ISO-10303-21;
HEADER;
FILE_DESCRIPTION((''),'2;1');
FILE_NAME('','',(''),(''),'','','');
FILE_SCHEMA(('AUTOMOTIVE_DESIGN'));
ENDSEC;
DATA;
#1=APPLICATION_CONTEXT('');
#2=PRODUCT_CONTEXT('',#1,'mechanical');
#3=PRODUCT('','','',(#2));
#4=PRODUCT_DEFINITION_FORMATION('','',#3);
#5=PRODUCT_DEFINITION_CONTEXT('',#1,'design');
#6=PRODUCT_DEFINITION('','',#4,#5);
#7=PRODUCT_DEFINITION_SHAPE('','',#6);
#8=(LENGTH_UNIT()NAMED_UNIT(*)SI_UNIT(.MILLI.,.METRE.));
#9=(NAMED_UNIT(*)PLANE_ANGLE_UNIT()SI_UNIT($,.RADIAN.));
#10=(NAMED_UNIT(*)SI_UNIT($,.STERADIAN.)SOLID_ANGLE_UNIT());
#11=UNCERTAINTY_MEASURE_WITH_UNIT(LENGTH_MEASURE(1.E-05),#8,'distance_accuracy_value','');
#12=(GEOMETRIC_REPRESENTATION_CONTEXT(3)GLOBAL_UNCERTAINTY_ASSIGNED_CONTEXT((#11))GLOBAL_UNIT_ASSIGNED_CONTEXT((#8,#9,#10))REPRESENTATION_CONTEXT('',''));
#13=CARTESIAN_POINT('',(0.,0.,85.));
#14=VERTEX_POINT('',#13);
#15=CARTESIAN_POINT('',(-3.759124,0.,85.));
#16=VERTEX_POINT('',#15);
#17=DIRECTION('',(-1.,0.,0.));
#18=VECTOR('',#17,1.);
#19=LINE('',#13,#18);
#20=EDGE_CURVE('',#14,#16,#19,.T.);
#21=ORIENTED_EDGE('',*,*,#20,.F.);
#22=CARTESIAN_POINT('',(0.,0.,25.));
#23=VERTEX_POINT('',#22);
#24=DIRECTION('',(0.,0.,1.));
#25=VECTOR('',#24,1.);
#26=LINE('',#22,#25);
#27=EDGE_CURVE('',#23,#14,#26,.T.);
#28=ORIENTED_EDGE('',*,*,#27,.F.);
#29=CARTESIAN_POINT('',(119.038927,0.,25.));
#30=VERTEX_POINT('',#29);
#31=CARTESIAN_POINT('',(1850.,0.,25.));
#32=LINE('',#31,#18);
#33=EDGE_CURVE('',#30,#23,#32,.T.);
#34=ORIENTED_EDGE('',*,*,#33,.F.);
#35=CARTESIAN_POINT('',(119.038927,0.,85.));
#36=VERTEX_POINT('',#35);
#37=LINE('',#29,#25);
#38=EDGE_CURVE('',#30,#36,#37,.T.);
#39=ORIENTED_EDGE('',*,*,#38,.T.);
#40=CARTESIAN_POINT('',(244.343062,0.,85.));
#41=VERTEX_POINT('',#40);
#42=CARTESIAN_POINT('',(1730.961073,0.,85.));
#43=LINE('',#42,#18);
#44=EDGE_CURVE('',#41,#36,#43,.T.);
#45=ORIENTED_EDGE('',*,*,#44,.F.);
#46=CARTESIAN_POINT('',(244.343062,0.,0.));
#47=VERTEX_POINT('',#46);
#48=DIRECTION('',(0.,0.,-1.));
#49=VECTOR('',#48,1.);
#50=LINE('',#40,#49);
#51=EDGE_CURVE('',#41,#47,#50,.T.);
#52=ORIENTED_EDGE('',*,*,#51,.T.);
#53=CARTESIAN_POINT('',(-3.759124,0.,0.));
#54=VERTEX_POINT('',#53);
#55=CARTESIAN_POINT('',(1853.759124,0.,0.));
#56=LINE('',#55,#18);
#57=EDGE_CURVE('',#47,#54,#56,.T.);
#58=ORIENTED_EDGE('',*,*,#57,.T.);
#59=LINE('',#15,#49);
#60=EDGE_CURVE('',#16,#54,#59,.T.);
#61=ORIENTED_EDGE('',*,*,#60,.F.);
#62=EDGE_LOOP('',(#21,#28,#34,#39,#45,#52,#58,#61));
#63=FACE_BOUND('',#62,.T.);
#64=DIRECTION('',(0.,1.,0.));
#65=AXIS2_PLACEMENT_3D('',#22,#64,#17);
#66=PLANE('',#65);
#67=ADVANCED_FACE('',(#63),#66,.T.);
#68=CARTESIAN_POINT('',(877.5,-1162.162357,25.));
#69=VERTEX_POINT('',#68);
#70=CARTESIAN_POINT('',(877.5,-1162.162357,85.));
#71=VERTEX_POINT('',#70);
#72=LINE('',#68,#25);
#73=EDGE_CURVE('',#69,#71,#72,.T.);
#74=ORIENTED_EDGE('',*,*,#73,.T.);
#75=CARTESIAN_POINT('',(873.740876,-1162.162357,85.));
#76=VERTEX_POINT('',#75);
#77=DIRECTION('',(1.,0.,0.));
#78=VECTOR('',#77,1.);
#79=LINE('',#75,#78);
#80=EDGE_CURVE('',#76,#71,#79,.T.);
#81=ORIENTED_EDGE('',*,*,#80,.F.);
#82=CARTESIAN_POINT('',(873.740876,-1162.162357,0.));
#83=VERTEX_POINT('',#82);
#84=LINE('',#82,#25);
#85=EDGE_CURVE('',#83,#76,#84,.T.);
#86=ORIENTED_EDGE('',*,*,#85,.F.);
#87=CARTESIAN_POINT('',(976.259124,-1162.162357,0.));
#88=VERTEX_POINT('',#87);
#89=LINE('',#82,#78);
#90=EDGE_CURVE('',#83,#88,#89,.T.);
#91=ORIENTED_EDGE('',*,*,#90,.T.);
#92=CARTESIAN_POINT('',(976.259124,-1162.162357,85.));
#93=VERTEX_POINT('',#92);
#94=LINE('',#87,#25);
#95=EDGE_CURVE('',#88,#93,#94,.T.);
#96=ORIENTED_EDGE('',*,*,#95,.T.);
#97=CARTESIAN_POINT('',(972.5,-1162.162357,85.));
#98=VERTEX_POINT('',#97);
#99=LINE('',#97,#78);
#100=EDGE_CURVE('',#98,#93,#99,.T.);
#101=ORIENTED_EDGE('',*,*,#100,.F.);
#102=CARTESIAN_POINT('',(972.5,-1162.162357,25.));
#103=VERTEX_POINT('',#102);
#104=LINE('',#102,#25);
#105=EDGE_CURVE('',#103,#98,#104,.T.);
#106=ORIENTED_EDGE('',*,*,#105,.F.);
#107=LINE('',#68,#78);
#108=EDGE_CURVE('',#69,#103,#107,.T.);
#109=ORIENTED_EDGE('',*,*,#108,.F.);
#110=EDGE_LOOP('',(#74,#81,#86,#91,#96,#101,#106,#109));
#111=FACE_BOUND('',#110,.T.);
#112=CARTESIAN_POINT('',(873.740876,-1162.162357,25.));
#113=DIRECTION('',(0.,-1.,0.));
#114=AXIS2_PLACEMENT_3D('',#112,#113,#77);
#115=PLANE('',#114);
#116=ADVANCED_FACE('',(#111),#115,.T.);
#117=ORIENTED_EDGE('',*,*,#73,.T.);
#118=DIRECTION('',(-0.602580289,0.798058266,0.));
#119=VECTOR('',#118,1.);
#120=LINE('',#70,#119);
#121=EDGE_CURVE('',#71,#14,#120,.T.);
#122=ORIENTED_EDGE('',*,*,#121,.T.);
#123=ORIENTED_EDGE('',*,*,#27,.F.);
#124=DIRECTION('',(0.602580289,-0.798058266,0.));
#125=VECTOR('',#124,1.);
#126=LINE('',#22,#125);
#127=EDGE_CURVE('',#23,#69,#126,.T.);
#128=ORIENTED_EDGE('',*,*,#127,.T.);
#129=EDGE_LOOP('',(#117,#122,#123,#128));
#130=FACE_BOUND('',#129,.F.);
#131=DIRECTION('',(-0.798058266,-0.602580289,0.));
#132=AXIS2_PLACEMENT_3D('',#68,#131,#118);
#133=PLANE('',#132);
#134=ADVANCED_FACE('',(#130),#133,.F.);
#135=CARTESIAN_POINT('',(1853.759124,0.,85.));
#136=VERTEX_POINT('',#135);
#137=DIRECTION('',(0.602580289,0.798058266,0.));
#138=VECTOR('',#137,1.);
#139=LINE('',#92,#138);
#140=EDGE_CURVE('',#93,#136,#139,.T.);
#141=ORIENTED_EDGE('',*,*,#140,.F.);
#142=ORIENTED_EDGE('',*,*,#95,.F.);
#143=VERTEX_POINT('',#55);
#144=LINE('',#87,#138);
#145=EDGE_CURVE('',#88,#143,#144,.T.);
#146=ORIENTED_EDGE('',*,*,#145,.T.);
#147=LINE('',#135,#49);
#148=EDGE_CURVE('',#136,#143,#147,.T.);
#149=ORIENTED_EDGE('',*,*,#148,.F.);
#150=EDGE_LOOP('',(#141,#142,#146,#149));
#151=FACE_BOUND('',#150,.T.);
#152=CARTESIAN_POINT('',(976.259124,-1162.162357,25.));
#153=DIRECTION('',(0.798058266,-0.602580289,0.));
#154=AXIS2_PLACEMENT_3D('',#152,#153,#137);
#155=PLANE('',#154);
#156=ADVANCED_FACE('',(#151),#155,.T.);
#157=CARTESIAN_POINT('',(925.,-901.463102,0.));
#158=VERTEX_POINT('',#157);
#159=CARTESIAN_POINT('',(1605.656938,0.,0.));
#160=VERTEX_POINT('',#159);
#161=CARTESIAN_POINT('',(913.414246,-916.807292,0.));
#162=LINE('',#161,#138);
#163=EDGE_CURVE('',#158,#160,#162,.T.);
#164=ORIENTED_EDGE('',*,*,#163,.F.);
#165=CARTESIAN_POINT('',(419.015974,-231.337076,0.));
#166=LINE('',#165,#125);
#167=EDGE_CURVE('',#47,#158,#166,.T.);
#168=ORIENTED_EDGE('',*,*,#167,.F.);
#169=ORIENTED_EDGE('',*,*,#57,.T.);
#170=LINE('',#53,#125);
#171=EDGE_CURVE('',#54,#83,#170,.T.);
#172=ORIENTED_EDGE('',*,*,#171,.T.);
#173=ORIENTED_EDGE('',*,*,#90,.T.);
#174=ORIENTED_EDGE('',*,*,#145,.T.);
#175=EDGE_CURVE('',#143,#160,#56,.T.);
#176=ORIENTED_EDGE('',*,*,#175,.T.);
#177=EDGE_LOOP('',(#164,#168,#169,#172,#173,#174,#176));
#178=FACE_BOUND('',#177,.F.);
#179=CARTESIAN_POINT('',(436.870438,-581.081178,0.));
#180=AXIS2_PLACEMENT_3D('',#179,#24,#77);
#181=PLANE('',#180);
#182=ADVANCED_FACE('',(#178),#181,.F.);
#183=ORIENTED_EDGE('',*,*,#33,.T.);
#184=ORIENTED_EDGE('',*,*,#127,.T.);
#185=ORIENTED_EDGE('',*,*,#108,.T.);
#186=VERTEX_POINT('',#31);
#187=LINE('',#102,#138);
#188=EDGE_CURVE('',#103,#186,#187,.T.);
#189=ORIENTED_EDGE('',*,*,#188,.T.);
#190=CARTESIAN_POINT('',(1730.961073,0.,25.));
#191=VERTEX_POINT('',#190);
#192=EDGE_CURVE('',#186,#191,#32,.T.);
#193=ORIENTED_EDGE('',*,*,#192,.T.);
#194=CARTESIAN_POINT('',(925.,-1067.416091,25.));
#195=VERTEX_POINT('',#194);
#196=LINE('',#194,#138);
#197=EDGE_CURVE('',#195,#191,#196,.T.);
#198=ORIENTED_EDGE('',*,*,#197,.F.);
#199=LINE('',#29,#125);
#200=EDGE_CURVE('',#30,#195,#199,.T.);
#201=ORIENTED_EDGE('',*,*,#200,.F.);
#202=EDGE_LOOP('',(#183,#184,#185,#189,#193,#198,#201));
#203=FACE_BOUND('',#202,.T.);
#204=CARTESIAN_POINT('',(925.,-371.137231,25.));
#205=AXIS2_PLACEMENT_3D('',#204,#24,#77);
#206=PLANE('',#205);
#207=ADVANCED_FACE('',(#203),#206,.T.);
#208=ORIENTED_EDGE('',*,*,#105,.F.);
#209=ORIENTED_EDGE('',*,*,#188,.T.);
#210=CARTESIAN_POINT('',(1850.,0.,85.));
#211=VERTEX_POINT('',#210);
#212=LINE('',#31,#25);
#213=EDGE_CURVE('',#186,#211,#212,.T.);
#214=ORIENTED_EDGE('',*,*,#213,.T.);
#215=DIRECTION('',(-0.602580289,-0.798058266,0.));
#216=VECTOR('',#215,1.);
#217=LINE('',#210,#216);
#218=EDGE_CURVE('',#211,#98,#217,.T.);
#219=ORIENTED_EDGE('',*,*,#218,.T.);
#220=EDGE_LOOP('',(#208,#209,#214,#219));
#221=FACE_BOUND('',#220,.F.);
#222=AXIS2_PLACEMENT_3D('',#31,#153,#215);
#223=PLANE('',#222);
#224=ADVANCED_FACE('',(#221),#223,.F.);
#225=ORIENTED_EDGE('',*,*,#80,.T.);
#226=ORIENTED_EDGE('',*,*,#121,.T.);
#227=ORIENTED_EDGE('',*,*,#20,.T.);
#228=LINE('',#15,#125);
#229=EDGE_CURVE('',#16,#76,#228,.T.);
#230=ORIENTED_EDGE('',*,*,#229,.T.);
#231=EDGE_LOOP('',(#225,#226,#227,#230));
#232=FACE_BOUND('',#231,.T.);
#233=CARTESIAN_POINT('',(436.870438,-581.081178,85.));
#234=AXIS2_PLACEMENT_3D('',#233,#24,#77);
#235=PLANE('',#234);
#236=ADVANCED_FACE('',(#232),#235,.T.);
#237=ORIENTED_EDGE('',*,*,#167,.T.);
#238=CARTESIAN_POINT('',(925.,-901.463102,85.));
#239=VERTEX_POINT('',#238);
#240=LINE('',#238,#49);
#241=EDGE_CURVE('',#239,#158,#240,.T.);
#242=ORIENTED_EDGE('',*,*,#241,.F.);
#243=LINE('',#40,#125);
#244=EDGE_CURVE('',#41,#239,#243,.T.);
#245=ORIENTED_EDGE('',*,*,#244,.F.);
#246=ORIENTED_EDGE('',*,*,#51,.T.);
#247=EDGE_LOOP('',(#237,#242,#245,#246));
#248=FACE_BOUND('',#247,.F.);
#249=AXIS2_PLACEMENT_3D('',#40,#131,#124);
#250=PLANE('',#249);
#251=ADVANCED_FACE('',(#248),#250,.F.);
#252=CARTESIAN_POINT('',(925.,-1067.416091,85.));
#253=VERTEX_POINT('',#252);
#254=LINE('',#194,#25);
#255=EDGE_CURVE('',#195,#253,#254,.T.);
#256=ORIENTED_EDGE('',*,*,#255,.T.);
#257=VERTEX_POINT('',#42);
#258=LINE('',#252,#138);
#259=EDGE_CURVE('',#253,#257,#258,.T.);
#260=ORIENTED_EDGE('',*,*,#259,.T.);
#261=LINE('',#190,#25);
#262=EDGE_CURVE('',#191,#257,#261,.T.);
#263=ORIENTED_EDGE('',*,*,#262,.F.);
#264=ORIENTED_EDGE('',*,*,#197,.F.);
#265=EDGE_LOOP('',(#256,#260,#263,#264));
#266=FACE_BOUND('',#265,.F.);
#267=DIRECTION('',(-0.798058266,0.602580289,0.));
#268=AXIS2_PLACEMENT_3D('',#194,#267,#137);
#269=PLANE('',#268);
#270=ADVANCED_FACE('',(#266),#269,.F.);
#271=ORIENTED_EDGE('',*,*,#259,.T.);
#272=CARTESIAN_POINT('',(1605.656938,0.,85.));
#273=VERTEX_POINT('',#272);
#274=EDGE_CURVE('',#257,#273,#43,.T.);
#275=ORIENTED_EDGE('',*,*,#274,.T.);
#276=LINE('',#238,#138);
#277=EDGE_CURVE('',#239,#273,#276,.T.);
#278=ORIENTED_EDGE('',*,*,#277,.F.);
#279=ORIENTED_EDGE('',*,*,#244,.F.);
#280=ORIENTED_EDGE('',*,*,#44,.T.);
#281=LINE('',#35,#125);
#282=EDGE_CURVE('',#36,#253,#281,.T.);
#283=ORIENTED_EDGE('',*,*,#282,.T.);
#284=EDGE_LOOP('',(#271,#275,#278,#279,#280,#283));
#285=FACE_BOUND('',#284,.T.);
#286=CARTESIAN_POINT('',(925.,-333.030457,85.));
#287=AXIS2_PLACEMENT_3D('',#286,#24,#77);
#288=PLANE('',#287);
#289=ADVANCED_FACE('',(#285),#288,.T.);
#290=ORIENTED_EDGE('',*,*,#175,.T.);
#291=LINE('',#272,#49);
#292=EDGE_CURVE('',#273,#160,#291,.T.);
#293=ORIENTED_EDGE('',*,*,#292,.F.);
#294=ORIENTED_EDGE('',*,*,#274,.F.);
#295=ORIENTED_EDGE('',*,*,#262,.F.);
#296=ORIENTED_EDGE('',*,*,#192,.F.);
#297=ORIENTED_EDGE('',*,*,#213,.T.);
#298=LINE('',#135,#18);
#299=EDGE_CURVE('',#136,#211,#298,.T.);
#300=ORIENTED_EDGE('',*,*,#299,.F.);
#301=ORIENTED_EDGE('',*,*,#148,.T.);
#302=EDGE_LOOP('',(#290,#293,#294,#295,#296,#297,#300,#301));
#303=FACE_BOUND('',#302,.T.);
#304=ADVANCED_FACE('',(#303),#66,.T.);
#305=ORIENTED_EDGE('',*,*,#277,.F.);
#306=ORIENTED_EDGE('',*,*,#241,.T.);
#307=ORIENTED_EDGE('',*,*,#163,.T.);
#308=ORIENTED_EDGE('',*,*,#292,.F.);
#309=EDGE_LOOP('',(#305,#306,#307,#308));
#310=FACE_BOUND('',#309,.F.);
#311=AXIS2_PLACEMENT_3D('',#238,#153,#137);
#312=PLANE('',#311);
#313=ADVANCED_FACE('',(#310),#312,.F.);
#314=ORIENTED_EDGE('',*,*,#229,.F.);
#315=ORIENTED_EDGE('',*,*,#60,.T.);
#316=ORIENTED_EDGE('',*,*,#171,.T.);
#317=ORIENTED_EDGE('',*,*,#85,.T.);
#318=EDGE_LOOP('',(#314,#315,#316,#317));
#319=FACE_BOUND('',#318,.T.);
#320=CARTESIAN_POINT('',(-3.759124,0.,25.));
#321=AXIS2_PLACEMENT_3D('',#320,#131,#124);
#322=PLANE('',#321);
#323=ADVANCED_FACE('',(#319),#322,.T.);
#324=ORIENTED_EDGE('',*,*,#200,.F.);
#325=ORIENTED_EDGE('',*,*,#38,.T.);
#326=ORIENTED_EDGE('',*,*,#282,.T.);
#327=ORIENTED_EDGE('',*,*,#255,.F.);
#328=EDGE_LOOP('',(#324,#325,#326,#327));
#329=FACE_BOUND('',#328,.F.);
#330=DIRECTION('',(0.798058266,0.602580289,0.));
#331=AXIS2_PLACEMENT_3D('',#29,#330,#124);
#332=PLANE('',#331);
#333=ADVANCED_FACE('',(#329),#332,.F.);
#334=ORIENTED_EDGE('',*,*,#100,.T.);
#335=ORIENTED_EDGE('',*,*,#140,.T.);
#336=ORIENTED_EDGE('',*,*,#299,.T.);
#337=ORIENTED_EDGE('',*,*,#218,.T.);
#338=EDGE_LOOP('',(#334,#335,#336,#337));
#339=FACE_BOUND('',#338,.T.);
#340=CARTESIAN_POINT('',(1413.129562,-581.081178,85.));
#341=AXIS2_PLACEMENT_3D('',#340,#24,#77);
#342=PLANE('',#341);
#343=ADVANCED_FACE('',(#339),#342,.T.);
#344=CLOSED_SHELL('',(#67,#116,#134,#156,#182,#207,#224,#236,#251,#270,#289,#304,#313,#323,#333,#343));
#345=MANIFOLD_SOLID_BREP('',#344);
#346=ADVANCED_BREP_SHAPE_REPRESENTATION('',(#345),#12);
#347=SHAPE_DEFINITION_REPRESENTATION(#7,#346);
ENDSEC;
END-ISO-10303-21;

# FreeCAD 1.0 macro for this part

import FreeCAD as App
import Part
import Sketcher


def add_polygon(sketch, points):
    """Adds a closed chain of lines whose ends are joined by coincident constraints."""
    first, n = sketch.GeometryCount, len(points)
    for a, b in zip(points, points[1:] + points[:1]):
        sketch.addGeometry(Part.LineSegment(App.Vector(*a, 0), App.Vector(*b, 0)), False)
    for i in range(n):
        sketch.addConstraint(Sketcher.Constraint("Coincident", first + i, 2, first + (i + 1) % n, 1))

doc = App.newDocument("Part")
body = doc.addObject("PartDesign::Body", "Body")

sketch1 = body.newObject("Sketcher::SketchObject", "Sketch")
sketch1.AttachmentSupport = (doc.getObject("XY_Plane"), [""])
sketch1.MapMode = "FlatFace"
add_polygon(sketch1, [(1850, 0), (0, 0), (878, -1162), (972, -1162)])
sketch1.addConstraint([
    Sketcher.Constraint("Horizontal", 0),
    Sketcher.Constraint("Horizontal", 2),
    Sketcher.Constraint("Coincident", 0, 2, -1, 1),
    Sketcher.Constraint("Equal", 1, 3),
    Sketcher.Constraint("DistanceX", 0, 2, 0, 1, 1850.0),
    Sketcher.Constraint("DistanceX", 2, 1, 2, 2, 95.0),
    Sketcher.Constraint("Distance", 1, 1456.237478),
])
pad1 = body.newObject("PartDesign::Pad", "Pad")
pad1.Profile = sketch1
pad1.Length = 25

sketch2 = body.newObject("Sketcher::SketchObject", "Sketch001")
sketch2.AttachmentSupport = (doc.getObject("XY_Plane"), [""])
sketch2.MapMode = "FlatFace"
sketch2.AttachmentOffset = App.Placement(App.Vector(0, 0, 25), App.Rotation())
add_polygon(sketch2, [(119, 0), (925, -1067), (1731, 0)])
sketch2.addConstraint([
    Sketcher.Constraint("Horizontal", 2),
    Sketcher.Constraint("PointOnObject", 1, 2, -1),
    Sketcher.Constraint("Equal", 0, 1),
    Sketcher.Constraint("DistanceX", -1, 1, 0, 2, 925.0),
    Sketcher.Constraint("Distance", 0, 1337.51649),
    Sketcher.Constraint("DistanceX", 2, 2, 2, 1, 1611.922145),
])
pad2 = body.newObject("PartDesign::Pad", "Pad001")
pad2.Profile = sketch2
pad2.Length = 60

sketch3 = body.newObject("Sketcher::SketchObject", "Sketch002")
sketch3.AttachmentSupport = (doc.getObject("XY_Plane"), [""])
sketch3.MapMode = "FlatFace"
sketch3.AttachmentOffset = App.Placement(App.Vector(0, 0, 25), App.Rotation())
add_polygon(sketch3, [(-3.8, 0), (873.7, -1162.2), (877.5, -1162.2), (0, 0)])
add_polygon(sketch3, [(1850, 0), (972.5, -1162.2), (976.3, -1162.2), (1853.8, 0)])
sketch3.addConstraint([
    Sketcher.Constraint("Horizontal", 1),
    Sketcher.Constraint("Horizontal", 3),
    Sketcher.Constraint("Horizontal", 5),
    Sketcher.Constraint("Horizontal", 7),
    Sketcher.Constraint("Coincident", 2, 2, -1, 1),
    Sketcher.Constraint("PointOnObject", 6, 2, -1),
    Sketcher.Constraint("Parallel", 0, 2),
    Sketcher.Constraint("Parallel", 4, 6),
    Sketcher.Constraint("Horizontal", 1, 2, 4, 2),
    Sketcher.Constraint("Equal", 3, 5),
    Sketcher.Constraint("Equal", 2, 4),
    Sketcher.Constraint("DistanceX", -1, 1, 7, 2, 1850.0),
    Sketcher.Constraint("DistanceX", 1, 2, 4, 2, 95.0),
    Sketcher.Constraint("Distance", 0, 1456.237478),
    Sketcher.Constraint("DistanceX", 1, 1, 1, 2, 3.759124),
])
pad3 = body.newObject("PartDesign::Pad", "Pad002")
pad3.Profile = sketch3
pad3.Type = "TwoLengths"
pad3.Length = 60
pad3.Length2 = 25

sketch4 = body.newObject("Sketcher::SketchObject", "Sketch003")
sketch4.AttachmentSupport = (doc.getObject("XY_Plane"), [""])
sketch4.MapMode = "FlatFace"
sketch4.AttachmentOffset = App.Placement(App.Vector(0, 0, 85), App.Rotation())
add_polygon(sketch4, [(244, 0), (925, -901), (1606, 0)])
sketch4.addConstraint([
    Sketcher.Constraint("Horizontal", 2),
    Sketcher.Constraint("PointOnObject", 1, 2, -1),
    Sketcher.Constraint("Equal", 0, 1),
    Sketcher.Constraint("DistanceX", -1, 1, 0, 2, 925.0),
    Sketcher.Constraint("DistanceY", 0, 2, -1, 1, 901.463102),
    Sketcher.Constraint("DistanceX", 2, 2, 2, 1, 1361.313877),
])
pocket1 = body.newObject("PartDesign::Pocket", "Pocket")
pocket1.Profile = sketch4
pocket1.Type = "ThroughAll"

doc.recompute()
